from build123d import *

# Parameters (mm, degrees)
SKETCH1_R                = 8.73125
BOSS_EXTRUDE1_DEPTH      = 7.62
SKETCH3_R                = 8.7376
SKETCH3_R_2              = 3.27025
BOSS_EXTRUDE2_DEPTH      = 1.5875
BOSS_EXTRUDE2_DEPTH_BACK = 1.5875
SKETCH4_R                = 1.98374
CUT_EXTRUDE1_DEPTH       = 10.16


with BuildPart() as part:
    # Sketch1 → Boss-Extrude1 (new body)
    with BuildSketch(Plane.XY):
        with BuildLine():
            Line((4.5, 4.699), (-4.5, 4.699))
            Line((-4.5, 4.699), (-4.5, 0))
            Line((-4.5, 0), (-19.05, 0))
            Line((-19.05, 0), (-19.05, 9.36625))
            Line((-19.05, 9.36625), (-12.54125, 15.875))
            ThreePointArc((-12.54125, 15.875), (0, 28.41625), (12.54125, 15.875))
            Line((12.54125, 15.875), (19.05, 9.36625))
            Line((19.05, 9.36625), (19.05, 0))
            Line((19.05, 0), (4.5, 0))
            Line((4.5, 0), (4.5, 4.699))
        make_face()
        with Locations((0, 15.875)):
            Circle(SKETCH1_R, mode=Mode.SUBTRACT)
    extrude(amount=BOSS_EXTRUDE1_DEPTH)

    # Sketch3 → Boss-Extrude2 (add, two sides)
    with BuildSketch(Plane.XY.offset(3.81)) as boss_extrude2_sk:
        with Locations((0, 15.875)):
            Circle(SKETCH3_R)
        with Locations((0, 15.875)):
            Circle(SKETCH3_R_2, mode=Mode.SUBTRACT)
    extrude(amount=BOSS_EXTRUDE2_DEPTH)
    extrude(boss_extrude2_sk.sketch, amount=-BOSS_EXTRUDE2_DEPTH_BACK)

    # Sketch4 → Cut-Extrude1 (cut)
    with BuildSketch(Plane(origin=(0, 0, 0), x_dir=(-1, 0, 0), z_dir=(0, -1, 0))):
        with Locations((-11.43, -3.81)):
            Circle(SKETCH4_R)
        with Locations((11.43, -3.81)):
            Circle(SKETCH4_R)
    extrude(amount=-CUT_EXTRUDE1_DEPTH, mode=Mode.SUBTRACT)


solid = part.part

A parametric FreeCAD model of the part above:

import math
import FreeCAD as App
import Part
import Sketcher
Q = App.Units.Quantity

doc = App.newDocument("Part")
params = doc.addObject("Spreadsheet::Sheet", "Params")
for row, (alias, value) in enumerate([
    ("sketch1_diameter", "0.6875 in"),
    ("sketch1_height", "0.185 in"),
    ("pad1_length", "0.3 in"),
    ("sketch2_diameter", "0.688 in"),
    ("pad2_length", "0.0625 in"),
    ("pad2_length2", "0.0625 in"),
    ("pocket1_length", "0.4 in"),
], start=1):
    params.set(f"A{row}", alias)
    params.set(f"B{row}", "=" + value)
    params.setAlias(f"B{row}", alias)

body = doc.addObject("PartDesign::Body", "Body")

# Sketch on XY plane
sketch1 = body.newObject("Sketcher::SketchObject", "Sketch")
sketch1.AttachmentSupport = (doc.getObject("XY_Plane"), [""])
sketch1.MapMode = "FlatFace"
sketch1.addGeometry(Part.LineSegment(App.Vector(-4.5, 4.699, 0), App.Vector(4.5, 4.699, 0)), False)
sketch1.addGeometry(Part.LineSegment(App.Vector(4.5, 4.699, 0), App.Vector(4.5, 0, 0)), False)
sketch1.addGeometry(Part.LineSegment(App.Vector(4.5, 0, 0), App.Vector(19.05, 0, 0)), False)
sketch1.addGeometry(Part.LineSegment(App.Vector(19.05, 0, 0), App.Vector(19.05, 9.36625, 0)), False)
sketch1.addGeometry(Part.LineSegment(App.Vector(19.05, 9.36625, 0), App.Vector(12.54125, 15.875, 0)), False)
sketch1.addGeometry(Part.ArcOfCircle(Part.Circle(App.Vector(0, 15.875, 0), App.Vector(0, 0, 1), 12.54125), math.radians(0), math.radians(180)), False)
sketch1.addGeometry(Part.LineSegment(App.Vector(-12.54125, 15.875, 0), App.Vector(-19.05, 9.36625, 0)), False)
sketch1.addGeometry(Part.LineSegment(App.Vector(-19.05, 9.36625, 0), App.Vector(-19.05, 0, 0)), False)
sketch1.addGeometry(Part.LineSegment(App.Vector(-19.05, 0, 0), App.Vector(-4.5, 0, 0)), False)
sketch1.addGeometry(Part.LineSegment(App.Vector(-4.5, 0, 0), App.Vector(-4.5, 4.699, 0)), False)
sketch1.addGeometry(Part.Circle(App.Vector(0, 15.875, 0), App.Vector(0, 0, 1), 8.73125), False)
sketch1.addConstraint(Sketcher.Constraint("Coincident", 0, 2, 1, 1))
sketch1.addConstraint(Sketcher.Constraint("Coincident", 1, 2, 2, 1))
sketch1.addConstraint(Sketcher.Constraint("Coincident", 2, 2, 3, 1))
sketch1.addConstraint(Sketcher.Constraint("Coincident", 3, 2, 4, 1))
sketch1.addConstraint(Sketcher.Constraint("Coincident", 4, 2, 5, 1))
sketch1.addConstraint(Sketcher.Constraint("Coincident", 5, 2, 6, 1))
sketch1.addConstraint(Sketcher.Constraint("Coincident", 6, 2, 7, 1))
sketch1.addConstraint(Sketcher.Constraint("Coincident", 7, 2, 8, 1))
sketch1.addConstraint(Sketcher.Constraint("Coincident", 8, 2, 9, 1))
sketch1.addConstraint(Sketcher.Constraint("Coincident", 9, 2, 0, 1))
sketch1.addConstraint(Sketcher.Constraint("Horizontal", 0))
sketch1.addConstraint(Sketcher.Constraint("Vertical", 1))
sketch1.addConstraint(Sketcher.Constraint("Horizontal", 2))
sketch1.addConstraint(Sketcher.Constraint("Vertical", 3))
sketch1.addConstraint(Sketcher.Constraint("Vertical", 7))
sketch1.addConstraint(Sketcher.Constraint("Horizontal", 8))
sketch1.addConstraint(Sketcher.Constraint("Vertical", 9))
sketch1.addConstraint(Sketcher.Constraint("Coincident", 10, 3, 5, 3))
sketch1.addConstraint(Sketcher.Constraint("Symmetric", 2, 2, 7, 2, -1, 1))
sketch1.addConstraint(Sketcher.Constraint("Symmetric", 4, 2, 5, 2, -2))
sketch1.addConstraint(Sketcher.Constraint("Symmetric", 1, 2, 8, 2, -2))
sketch1.addConstraint(Sketcher.Constraint("Perpendicular", 4, 6))
sketch1.addConstraint(Sketcher.Constraint("Horizontal", 10, 3, 4, 2))
sketch1.addConstraint(Sketcher.Constraint("Horizontal", 3, 2, 6, 2))
sketch1.addConstraint(Sketcher.Constraint("Diameter", 10, Q("0.6875 in")))
sketch1.addConstraint(Sketcher.Constraint("DistanceY", 1, 2, 1, 1, Q("0.185 in")))
sketch1.addConstraint(Sketcher.Constraint("DistanceX", -1, 1, 2, 2, Q("0.75 in")))
sketch1.addConstraint(Sketcher.Constraint("DistanceY", 0, 2, 5, 3, Q("0.44 in")))
sketch1.addConstraint(Sketcher.Constraint("Radius", 5, 12.54125))
sketch1.addConstraint(Sketcher.Constraint("DistanceX", 0, 1, 0, 2, 9.0))
sketch1.setExpression("Constraints[24]", "Params.sketch1_diameter")
sketch1.setExpression("Constraints[25]", "Params.sketch1_height")
pad1 = body.newObject("PartDesign::Pad", "Pad")
pad1.Profile = sketch1
pad1.setExpression("Length", "Params.pad1_length")

# Sketch on XY plane
sketch2 = body.newObject("Sketcher::SketchObject", "Sketch001")
sketch2.AttachmentSupport = (doc.getObject("XY_Plane"), [""])
sketch2.MapMode = "FlatFace"
sketch2.AttachmentOffset = App.Placement(App.Vector(0, 0, 0.15 * 25.4), App.Rotation())
sketch2.addGeometry(Part.Circle(App.Vector(0, 15.875, 0), App.Vector(0, 0, 1), 8.7376), False)
sketch2.addGeometry(Part.Circle(App.Vector(0, 15.875, 0), App.Vector(0, 0, 1), 3.27025), False)
sketch2.addConstraint(Sketcher.Constraint("Coincident", 1, 3, 0, 3))
sketch2.addConstraint(Sketcher.Constraint("PointOnObject", 0, 3, -2))
sketch2.addConstraint(Sketcher.Constraint("Diameter", 0, Q("0.688 in")))
sketch2.addConstraint(Sketcher.Constraint("Diameter", 1, Q("0.2575 in")))
sketch2.addConstraint(Sketcher.Constraint("DistanceY", -1, 1, 0, 3, Q("0.625 in")))
sketch2.setExpression("Constraints[2]", "Params.sketch2_diameter")
pad2 = body.newObject("PartDesign::Pad", "Pad001")
pad2.Profile = sketch2
pad2.Type = "TwoLengths"
pad2.setExpression("Length", "Params.pad2_length")
pad2.setExpression("Length2", "Params.pad2_length2")

# Sketch on XZ plane
sketch3 = body.newObject("Sketcher::SketchObject", "Sketch002")
sketch3.AttachmentSupport = (doc.getObject("XZ_Plane"), [""])
sketch3.MapMode = "FlatFace"
sketch3.addGeometry(Part.Circle(App.Vector(11.43, 3.81, 0), App.Vector(0, 0, 1), 1.98374), False)
sketch3.addGeometry(Part.Circle(App.Vector(-11.43, 3.81, 0), App.Vector(0, 0, 1), 1.98374), False)
sketch3.addConstraint(Sketcher.Constraint("Equal", 0, 1))
sketch3.addConstraint(Sketcher.Constraint("Symmetric", 0, 3, 1, 3, -2))
sketch3.addConstraint(Sketcher.Constraint("Diameter", 0, Q("0.1562 in")))
sketch3.addConstraint(Sketcher.Constraint("DistanceX", 1, 3, 0, 3, Q("0.9 in")))
sketch3.addConstraint(Sketcher.Constraint("DistanceY", -1, 1, 0, 3, Q("0.15 in")))
pocket1 = body.newObject("PartDesign::Pocket", "Pocket")
pocket1.Profile = sketch3
pocket1.setExpression("Length", "Params.pocket1_length")

doc.recompute()
